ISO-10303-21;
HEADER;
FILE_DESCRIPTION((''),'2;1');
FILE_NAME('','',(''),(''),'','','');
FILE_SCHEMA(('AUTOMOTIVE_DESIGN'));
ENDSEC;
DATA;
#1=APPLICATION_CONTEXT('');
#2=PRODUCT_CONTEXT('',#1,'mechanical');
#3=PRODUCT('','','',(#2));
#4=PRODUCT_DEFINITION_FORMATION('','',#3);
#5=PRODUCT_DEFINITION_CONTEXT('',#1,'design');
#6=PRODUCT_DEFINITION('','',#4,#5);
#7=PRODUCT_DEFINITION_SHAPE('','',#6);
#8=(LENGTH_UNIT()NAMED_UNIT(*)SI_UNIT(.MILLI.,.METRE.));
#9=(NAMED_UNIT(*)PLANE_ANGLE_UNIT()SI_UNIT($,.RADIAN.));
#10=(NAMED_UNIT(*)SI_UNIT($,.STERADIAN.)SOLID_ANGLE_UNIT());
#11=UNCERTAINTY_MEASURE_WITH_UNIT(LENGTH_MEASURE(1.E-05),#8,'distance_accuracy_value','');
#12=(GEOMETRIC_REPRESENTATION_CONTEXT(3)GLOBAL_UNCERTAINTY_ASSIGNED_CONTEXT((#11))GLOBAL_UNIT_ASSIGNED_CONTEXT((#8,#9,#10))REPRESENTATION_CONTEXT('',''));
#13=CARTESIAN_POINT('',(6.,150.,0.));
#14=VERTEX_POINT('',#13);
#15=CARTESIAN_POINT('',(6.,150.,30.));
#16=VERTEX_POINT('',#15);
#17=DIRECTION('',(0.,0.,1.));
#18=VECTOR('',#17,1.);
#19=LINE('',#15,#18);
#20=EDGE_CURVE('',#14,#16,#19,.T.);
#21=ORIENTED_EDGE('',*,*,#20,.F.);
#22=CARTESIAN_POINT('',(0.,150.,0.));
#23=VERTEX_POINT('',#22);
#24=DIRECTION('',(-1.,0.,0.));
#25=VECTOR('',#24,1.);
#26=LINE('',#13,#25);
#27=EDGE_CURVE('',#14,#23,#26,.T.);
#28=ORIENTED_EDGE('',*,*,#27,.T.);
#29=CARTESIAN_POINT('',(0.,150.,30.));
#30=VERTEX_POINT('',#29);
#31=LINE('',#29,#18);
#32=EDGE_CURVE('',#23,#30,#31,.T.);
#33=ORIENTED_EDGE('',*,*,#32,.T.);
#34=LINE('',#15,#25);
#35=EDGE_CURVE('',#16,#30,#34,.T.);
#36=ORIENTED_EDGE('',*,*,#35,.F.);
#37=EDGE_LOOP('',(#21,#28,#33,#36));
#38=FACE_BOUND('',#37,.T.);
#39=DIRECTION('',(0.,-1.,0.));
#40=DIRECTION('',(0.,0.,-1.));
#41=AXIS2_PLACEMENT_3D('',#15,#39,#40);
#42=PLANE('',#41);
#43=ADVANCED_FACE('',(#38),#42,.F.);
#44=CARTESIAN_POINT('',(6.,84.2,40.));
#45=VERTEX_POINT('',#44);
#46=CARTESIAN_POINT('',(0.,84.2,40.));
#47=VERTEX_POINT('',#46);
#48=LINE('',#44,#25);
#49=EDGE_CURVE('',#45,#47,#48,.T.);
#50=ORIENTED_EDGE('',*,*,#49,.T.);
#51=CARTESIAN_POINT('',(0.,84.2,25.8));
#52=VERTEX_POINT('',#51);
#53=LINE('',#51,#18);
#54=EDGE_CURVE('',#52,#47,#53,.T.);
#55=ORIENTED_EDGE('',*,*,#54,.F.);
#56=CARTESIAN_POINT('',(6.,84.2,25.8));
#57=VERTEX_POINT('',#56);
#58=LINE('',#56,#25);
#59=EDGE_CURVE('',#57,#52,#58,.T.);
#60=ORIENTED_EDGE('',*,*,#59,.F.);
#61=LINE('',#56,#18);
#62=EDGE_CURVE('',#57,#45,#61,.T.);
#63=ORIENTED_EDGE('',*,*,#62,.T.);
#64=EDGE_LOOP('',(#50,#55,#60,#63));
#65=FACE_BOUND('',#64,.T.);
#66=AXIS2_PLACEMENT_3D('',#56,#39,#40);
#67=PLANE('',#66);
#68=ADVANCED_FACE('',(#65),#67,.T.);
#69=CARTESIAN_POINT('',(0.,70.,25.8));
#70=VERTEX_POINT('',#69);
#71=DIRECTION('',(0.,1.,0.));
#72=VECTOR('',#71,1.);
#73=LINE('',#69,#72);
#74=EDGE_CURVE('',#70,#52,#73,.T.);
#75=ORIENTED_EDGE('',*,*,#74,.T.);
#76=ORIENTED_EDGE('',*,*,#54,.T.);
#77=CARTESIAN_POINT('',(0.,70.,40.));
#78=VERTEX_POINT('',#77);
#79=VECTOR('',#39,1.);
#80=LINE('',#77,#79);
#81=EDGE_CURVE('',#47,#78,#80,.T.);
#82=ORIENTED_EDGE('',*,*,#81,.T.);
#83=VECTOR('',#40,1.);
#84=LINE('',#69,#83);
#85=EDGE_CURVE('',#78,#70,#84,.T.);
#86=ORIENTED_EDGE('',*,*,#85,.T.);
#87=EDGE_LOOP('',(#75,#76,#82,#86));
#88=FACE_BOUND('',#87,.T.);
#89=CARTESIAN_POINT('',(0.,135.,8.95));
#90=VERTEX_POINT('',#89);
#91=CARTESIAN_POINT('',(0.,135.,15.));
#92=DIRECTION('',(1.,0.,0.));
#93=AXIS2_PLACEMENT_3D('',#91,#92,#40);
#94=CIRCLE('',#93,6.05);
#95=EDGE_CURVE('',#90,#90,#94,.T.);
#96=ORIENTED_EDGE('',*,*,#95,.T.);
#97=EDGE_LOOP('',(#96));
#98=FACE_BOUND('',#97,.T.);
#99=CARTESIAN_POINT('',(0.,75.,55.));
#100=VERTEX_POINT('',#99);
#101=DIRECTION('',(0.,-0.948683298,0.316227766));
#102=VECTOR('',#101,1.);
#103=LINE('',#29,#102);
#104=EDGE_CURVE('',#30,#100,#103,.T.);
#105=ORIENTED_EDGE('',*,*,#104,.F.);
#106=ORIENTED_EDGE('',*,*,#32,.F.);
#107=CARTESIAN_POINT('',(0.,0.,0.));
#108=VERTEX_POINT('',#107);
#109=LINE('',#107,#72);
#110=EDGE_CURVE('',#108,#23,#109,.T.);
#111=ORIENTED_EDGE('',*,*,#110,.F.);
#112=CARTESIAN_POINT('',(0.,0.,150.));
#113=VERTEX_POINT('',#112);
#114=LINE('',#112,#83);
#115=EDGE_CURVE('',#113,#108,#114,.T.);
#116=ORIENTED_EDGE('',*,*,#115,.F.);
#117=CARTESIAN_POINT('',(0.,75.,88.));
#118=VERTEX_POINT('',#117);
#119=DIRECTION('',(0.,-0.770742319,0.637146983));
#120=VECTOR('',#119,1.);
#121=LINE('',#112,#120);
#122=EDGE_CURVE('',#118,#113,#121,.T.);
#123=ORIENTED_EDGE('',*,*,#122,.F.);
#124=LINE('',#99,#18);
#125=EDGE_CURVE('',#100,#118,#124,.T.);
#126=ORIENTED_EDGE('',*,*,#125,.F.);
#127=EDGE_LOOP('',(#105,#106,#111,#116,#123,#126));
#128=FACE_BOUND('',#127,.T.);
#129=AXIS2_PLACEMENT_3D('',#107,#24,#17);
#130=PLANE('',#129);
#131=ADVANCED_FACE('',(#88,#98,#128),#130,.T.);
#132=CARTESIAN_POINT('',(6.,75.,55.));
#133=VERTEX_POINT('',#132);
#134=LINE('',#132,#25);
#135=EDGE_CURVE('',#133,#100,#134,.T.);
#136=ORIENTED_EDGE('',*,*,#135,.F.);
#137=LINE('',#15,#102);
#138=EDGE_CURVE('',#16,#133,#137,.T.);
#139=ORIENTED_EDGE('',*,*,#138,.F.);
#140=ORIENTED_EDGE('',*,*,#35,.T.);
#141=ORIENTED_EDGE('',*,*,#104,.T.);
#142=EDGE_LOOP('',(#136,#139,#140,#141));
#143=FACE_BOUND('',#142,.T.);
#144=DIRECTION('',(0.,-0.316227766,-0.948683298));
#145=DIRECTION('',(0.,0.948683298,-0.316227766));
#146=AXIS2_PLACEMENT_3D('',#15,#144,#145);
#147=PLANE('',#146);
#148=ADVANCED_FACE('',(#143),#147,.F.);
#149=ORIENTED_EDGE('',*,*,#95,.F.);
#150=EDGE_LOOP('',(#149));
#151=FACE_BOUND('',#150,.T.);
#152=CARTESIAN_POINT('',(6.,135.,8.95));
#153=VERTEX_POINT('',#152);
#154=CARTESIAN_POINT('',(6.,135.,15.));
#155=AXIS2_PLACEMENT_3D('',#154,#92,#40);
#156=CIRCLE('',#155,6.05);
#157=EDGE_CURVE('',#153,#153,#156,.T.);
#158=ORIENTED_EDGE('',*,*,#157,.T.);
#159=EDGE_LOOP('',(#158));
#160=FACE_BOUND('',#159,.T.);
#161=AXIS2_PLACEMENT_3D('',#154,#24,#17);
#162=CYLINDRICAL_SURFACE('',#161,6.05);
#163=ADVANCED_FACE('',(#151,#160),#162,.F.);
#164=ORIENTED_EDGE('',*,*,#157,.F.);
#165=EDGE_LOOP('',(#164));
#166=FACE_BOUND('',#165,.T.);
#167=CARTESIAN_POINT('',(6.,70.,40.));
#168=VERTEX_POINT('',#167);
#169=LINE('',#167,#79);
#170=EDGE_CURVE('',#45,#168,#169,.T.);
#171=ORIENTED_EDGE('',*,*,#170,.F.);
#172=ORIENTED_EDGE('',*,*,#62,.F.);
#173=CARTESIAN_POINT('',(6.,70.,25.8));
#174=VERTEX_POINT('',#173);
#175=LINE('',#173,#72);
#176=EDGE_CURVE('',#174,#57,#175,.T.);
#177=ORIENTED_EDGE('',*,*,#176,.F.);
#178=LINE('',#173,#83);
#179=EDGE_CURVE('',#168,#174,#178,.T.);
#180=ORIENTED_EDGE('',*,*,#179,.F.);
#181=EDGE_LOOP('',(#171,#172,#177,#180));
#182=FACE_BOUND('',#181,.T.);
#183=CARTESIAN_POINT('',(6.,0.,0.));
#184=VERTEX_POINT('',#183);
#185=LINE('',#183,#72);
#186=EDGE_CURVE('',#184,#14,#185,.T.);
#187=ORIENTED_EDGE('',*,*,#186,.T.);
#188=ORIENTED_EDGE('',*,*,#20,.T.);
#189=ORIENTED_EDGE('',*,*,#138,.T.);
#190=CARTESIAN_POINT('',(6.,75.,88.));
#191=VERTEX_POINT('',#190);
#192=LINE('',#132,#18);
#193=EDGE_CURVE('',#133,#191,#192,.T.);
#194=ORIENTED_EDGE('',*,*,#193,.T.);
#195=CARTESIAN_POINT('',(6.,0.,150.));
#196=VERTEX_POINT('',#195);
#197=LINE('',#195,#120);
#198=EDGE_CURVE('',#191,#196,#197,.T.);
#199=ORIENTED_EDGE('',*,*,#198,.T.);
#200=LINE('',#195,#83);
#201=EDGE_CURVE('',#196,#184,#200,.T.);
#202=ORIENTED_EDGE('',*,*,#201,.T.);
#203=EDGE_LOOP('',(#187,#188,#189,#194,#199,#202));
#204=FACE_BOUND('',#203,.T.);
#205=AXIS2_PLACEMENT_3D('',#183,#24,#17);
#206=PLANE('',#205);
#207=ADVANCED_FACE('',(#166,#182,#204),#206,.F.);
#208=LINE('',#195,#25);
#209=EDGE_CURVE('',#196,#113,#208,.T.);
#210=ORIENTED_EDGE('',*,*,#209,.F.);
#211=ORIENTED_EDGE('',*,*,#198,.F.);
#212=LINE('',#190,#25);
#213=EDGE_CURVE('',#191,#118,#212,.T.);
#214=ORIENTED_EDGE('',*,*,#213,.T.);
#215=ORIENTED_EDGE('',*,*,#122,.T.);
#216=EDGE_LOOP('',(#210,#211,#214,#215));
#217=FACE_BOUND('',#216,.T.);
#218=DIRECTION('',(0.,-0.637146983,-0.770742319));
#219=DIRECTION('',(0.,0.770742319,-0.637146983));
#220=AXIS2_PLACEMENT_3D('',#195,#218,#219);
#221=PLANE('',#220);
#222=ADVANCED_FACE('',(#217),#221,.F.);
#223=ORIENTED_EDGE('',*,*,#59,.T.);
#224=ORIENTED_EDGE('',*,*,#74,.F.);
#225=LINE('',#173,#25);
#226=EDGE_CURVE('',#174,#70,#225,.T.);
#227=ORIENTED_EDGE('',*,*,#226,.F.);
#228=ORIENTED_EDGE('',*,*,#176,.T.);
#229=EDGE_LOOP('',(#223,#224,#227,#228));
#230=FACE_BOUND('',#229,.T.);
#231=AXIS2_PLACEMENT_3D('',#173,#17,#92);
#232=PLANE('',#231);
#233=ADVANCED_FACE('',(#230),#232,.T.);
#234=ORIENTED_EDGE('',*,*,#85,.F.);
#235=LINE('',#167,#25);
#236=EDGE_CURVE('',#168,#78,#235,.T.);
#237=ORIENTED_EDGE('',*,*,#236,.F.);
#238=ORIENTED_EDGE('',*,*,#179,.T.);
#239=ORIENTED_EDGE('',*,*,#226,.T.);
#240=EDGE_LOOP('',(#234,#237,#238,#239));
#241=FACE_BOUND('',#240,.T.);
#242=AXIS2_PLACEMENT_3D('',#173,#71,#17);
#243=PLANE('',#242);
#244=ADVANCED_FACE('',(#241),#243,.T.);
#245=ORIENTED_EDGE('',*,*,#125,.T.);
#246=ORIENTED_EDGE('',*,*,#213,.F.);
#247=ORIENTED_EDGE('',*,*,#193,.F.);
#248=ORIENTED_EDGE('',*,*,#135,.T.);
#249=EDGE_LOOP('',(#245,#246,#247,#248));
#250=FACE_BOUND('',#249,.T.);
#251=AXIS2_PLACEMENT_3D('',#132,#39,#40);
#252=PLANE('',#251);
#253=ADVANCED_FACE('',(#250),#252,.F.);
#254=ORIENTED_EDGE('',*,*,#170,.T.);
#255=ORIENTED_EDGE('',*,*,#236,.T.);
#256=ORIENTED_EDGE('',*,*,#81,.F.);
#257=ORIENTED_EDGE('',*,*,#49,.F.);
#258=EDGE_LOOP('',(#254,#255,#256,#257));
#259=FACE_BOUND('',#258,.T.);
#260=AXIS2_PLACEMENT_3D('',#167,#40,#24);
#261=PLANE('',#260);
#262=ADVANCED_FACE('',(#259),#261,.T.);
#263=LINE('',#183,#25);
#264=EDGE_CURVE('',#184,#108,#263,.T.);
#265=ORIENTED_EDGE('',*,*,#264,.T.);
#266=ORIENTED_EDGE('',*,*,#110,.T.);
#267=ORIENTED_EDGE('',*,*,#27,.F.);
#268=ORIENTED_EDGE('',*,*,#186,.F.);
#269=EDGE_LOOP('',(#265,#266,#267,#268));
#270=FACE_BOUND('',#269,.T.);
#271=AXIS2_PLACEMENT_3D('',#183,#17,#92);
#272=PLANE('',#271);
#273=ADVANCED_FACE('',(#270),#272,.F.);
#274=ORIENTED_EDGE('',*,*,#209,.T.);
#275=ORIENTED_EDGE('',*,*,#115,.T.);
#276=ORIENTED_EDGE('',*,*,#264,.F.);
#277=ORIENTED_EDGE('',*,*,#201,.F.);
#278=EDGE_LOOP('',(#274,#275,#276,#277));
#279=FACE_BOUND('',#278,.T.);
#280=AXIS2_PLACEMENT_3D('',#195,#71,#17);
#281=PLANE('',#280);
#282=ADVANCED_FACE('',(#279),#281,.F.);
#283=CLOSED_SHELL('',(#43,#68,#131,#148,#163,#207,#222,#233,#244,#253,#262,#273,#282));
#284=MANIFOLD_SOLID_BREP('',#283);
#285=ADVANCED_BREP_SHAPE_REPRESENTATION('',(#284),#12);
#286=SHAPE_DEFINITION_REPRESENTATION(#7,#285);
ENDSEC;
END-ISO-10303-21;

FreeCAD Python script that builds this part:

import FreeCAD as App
import Part
import Sketcher


def add_polygon(sketch, points):
    """Adds a closed chain of lines whose ends are joined by coincident constraints."""
    first, n = sketch.GeometryCount, len(points)
    for a, b in zip(points, points[1:] + points[:1]):
        sketch.addGeometry(Part.LineSegment(App.Vector(*a, 0), App.Vector(*b, 0)), False)
    for i in range(n):
        sketch.addConstraint(Sketcher.Constraint("Coincident", first + i, 2, first + (i + 1) % n, 1))

doc = App.newDocument("Part")
body = doc.addObject("PartDesign::Body", "Body")

sketch1 = body.newObject("Sketcher::SketchObject", "Sketch")
sketch1.AttachmentSupport = (doc.getObject("YZ_Plane"), [""])
sketch1.MapMode = "FlatFace"
add_polygon(sketch1, [(75, 88), (0, 150), (0, 0), (150, 0), (150, 30), (75, 55)])
add_polygon(sketch1, [(70, 40), (84, 40), (84, 26), (70, 26)])
sketch1.addGeometry(Part.Circle(App.Vector(135, 15, 0), App.Vector(0, 0, 1), 6), False)
sketch1.addConstraint([
    Sketcher.Constraint("Vertical", 1),
    Sketcher.Constraint("Horizontal", 2),
    Sketcher.Constraint("Vertical", 3),
    Sketcher.Constraint("Vertical", 5),
    Sketcher.Constraint("Horizontal", 6),
    Sketcher.Constraint("Vertical", 7),
    Sketcher.Constraint("Horizontal", 8),
    Sketcher.Constraint("Vertical", 9),
    Sketcher.Constraint("Coincident", 1, 2, -1, 1),
    Sketcher.Constraint("Equal", 2, 1),
    Sketcher.Constraint("Equal", 8, 7),
    Sketcher.Constraint("Diameter", 10, 12.1),
    Sketcher.Constraint("DistanceX", 2, 1, 2, 2, 150.0),
    Sketcher.Constraint("DistanceY", 3, 1, 3, 2, 30.0),
    Sketcher.Constraint("DistanceY", 5, 1, 5, 2, 33.0),
    Sketcher.Constraint("DistanceX", 6, 1, 6, 2, 14.2),
    Sketcher.Constraint("DistanceX", -1, 1, 10, 3, 135.0),
    Sketcher.Constraint("DistanceY", -1, 1, 10, 3, 15.0),
    Sketcher.Constraint("DistanceX", -1, 1, 4, 2, 75.0),
    Sketcher.Constraint("DistanceY", -1, 1, 4, 2, 55.0),
    Sketcher.Constraint("DistanceY", -1, 1, 6, 2, 40.0),
    Sketcher.Constraint("DistanceX", -1, 1, 8, 2, 70.0),
])
pad1 = body.newObject("PartDesign::Pad", "Pad")
pad1.Profile = sketch1
pad1.Length = 6

doc.recompute()
